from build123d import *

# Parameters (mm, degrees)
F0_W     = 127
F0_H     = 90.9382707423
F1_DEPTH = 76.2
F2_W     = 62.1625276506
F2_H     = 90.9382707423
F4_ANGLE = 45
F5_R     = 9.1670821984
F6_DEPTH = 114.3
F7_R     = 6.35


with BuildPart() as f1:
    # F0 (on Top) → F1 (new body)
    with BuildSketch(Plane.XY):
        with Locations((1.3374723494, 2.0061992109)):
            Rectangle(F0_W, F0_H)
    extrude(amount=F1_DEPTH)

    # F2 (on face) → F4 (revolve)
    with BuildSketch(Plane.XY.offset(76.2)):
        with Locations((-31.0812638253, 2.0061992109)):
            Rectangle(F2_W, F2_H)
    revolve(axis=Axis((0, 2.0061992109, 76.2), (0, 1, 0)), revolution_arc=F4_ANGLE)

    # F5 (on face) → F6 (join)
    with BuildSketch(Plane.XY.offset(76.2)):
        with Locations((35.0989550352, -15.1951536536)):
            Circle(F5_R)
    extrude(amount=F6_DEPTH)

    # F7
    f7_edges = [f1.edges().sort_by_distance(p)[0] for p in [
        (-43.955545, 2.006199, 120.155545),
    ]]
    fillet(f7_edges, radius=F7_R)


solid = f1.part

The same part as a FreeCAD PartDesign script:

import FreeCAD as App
import Part
import Sketcher

V = App.Vector
Q = App.Units.Quantity


def edges_at(feature, points):
    """Names of the edges that pass closest to the given points."""
    edges = feature.Shape.Edges
    near = lambda p: min(range(len(edges)), key=lambda i: edges[i].distToShape(Part.Vertex(*p))[0])
    return sorted({f"Edge{near(p) + 1}" for p in points})


def add_polygon(sketch, points):
    """Adds a closed chain of lines whose ends are joined by coincident constraints."""
    first, n = sketch.GeometryCount, len(points)
    for a, b in zip(points, points[1:] + points[:1]):
        sketch.addGeometry(Part.LineSegment(App.Vector(*a, 0), App.Vector(*b, 0)), False)
    for i in range(n):
        sketch.addConstraint(Sketcher.Constraint("Coincident", first + i, 2, first + (i + 1) % n, 1))

doc = App.newDocument("Part")
body = doc.addObject("PartDesign::Body", "Body")

# Sketch on XY plane
sketch1 = body.newObject("Sketcher::SketchObject", "Sketch")
sketch1.AttachmentSupport = (doc.getObject("XY_Plane"), [""])
sketch1.MapMode = "FlatFace"
add_polygon(sketch1, [(-62, 47), (-62, -43), (65, -43), (65, 47)])  # lines 0-3
sketch1.addConstraint(Sketcher.Constraint("Vertical", 0))
sketch1.addConstraint(Sketcher.Constraint("Horizontal", 1))
sketch1.addConstraint(Sketcher.Constraint("Vertical", 2))
sketch1.addConstraint(Sketcher.Constraint("Horizontal", 3))
sketch1.addConstraint(Sketcher.Constraint("DistanceX", 1, 1, 1, 2, Q("5 in")))
sketch1.addConstraint(Sketcher.Constraint("DistanceY", 0, 2, 0, 1, Q("90.938271 mm")))
sketch1.addConstraint(Sketcher.Constraint("DistanceX", 0, 2, -1, 1, Q("62.162528 mm")))
sketch1.addConstraint(Sketcher.Constraint("DistanceY", 0, 2, -1, 1, Q("43.462936 mm")))
pad1 = body.newObject("PartDesign::Pad", "Pad")
pad1.Profile = sketch1
pad1.Length = Q("3 in")

# Sketch on XY plane
sketch2 = body.newObject("Sketcher::SketchObject", "Sketch001")
sketch2.AttachmentSupport = (doc.getObject("XY_Plane"), [""])
sketch2.MapMode = "FlatFace"
sketch2.AttachmentOffset = App.Placement(V(0, 0, 3 * 25.4), App.Rotation())
add_polygon(sketch2, [(-62, 47), (-62, -43), (0, -43), (0, 47)])  # lines 0-3
sketch2.addConstraint(Sketcher.Constraint("Vertical", 0))
sketch2.addConstraint(Sketcher.Constraint("Horizontal", 1))
sketch2.addConstraint(Sketcher.Constraint("Vertical", 2))
sketch2.addConstraint(Sketcher.Constraint("Horizontal", 3))
sketch2.addConstraint(Sketcher.Constraint("PointOnObject", 1, 2, -2))
sketch2.addConstraint(Sketcher.Constraint("DistanceY", 0, 2, 0, 1, Q("90.938271 mm")))
sketch2.addConstraint(Sketcher.Constraint("DistanceX", 1, 1, 1, 2, Q("62.162528 mm")))
sketch2.addConstraint(Sketcher.Constraint("DistanceY", 0, 2, -1, 1, Q("43.462936 mm")))
revolution = body.newObject("PartDesign::Revolution", "Revolution")
revolution.Profile = sketch2
revolution.ReferenceAxis = (sketch2, ["V_Axis"])
revolution.Angle = 45

# Sketch on XY plane
sketch3 = body.newObject("Sketcher::SketchObject", "Sketch002")
sketch3.AttachmentSupport = (doc.getObject("XY_Plane"), [""])
sketch3.MapMode = "FlatFace"
sketch3.AttachmentOffset = App.Placement(V(0, 0, 3 * 25.4), App.Rotation())
sketch3.addGeometry(Part.Circle(V(35, -15, 0), V(0, 0, 1), 9), False)
sketch3.addConstraint(Sketcher.Constraint("Diameter", 0, Q("18.334164 mm")))
sketch3.addConstraint(Sketcher.Constraint("DistanceX", -1, 1, 0, 3, Q("35.098955 mm")))
sketch3.addConstraint(Sketcher.Constraint("DistanceY", 0, 3, -1, 1, Q("15.195154 mm")))
pad2 = body.newObject("PartDesign::Pad", "Pad001")
pad2.Profile = sketch3
pad2.Length = Q("4.5 in")
doc.recompute()

fillet = body.newObject("PartDesign::Fillet", "Fillet")
fillet.Base = (pad2, edges_at(pad2, [(-43.956, 2.006, 120.156)]))
fillet.Radius = Q("0.25 in")

doc.recompute()
